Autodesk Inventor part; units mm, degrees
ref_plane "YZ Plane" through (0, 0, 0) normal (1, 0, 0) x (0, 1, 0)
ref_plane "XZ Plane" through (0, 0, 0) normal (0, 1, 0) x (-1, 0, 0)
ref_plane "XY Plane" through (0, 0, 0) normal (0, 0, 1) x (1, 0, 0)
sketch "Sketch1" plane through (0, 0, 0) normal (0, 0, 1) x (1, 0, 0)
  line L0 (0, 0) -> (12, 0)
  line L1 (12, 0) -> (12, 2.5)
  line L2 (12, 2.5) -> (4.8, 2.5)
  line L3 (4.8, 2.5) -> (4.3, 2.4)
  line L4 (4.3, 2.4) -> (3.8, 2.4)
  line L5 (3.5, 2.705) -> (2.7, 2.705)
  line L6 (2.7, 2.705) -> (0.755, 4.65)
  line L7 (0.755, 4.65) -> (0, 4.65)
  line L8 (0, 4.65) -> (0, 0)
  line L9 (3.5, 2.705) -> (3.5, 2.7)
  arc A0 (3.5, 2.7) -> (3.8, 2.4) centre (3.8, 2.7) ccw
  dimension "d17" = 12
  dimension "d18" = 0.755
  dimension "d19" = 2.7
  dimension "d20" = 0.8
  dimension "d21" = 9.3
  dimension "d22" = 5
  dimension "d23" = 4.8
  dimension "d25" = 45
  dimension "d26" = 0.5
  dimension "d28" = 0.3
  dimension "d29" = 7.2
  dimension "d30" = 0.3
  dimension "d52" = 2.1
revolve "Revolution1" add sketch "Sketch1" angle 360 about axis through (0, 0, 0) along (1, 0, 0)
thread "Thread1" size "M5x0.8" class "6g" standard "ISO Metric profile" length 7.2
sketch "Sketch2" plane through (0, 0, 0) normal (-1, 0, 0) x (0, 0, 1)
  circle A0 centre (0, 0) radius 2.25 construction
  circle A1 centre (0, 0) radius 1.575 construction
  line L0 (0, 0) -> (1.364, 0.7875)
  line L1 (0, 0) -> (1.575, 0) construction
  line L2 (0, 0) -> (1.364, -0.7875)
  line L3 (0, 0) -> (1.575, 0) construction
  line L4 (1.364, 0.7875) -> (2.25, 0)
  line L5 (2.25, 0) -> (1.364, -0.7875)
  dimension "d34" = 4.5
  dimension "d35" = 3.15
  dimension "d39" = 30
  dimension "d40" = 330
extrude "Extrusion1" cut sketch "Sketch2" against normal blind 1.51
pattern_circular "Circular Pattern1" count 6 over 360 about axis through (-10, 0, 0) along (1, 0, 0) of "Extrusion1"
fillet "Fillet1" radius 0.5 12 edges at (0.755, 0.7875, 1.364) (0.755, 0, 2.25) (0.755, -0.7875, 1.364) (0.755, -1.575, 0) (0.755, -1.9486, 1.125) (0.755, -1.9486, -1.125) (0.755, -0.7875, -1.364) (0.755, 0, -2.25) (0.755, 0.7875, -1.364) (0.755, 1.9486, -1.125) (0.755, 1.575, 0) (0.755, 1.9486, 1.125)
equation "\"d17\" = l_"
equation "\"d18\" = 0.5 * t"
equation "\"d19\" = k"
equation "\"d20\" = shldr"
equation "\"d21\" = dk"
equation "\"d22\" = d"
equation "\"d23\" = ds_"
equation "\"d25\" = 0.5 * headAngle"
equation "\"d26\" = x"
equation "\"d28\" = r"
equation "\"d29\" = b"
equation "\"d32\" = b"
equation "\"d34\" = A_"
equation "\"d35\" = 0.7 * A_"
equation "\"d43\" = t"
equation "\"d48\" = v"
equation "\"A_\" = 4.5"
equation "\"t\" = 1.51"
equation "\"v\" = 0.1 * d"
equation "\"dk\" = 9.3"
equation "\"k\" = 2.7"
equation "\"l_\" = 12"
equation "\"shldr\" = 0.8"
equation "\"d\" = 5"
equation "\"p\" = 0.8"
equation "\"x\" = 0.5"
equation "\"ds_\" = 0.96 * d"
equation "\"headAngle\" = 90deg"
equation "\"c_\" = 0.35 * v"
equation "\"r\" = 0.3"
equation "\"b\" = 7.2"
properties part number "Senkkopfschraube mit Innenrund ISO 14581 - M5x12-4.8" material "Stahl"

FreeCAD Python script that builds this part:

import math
import FreeCAD as App
import Part
import Sketcher
Q = App.Units.Quantity


def edges_at(feature, points):
    """Names of the edges that pass closest to the given points."""
    edges = feature.Shape.Edges
    near = lambda p: min(range(len(edges)), key=lambda i: edges[i].distToShape(Part.Vertex(*p))[0])
    return sorted({f"Edge{near(p) + 1}" for p in points})

doc = App.newDocument("Part")
params = doc.addObject("Spreadsheet::Sheet", "Params")
for row, (alias, value) in enumerate([
    ("sketch1_radius", "0.3 mm"),
    ("sketch1_width", "12 mm"),
    ("sketch1_width2", "7.2 mm"),
    ("sketch1_width3", "0.5 mm"),
    ("sketch1_width4", "0.8 mm"),
    ("revolution_angle", "360 deg"),
    ("pocket1_length", "1.51 mm"),
    ("fillet_radius", "0.5 mm"),
], start=1):
    params.set(f"A{row}", alias)
    params.set(f"B{row}", "=" + value)
    params.setAlias(f"B{row}", alias)

body = doc.addObject("PartDesign::Body", "Body")

sketch1 = body.newObject("Sketcher::SketchObject", "Sketch")
sketch1.AttachmentSupport = (doc.getObject("XY_Plane"), [""])
sketch1.MapMode = "FlatFace"
sketch1.addGeometry(Part.LineSegment(App.Vector(0, 4.65, 0), App.Vector(0, 0, 0)), False)
sketch1.addGeometry(Part.LineSegment(App.Vector(0, 0, 0), App.Vector(12, 0, 0)), False)
sketch1.addGeometry(Part.LineSegment(App.Vector(12, 0, 0), App.Vector(12, 2.5, 0)), False)
sketch1.addGeometry(Part.LineSegment(App.Vector(12, 2.5, 0), App.Vector(4.8, 2.5, 0)), False)
sketch1.addGeometry(Part.LineSegment(App.Vector(4.8, 2.5, 0), App.Vector(4.3, 2.4, 0)), False)
sketch1.addGeometry(Part.LineSegment(App.Vector(4.3, 2.4, 0), App.Vector(3.8, 2.4, 0)), False)
sketch1.addGeometry(Part.ArcOfCircle(Part.Circle(App.Vector(3.8, 2.7, 0), App.Vector(0, 0, 1), 0.3), math.radians(180), math.radians(270)), False)
sketch1.addGeometry(Part.LineSegment(App.Vector(3.5, 2.7, 0), App.Vector(3.5, 2.705, 0)), False)
sketch1.addGeometry(Part.LineSegment(App.Vector(3.5, 2.705, 0), App.Vector(2.7, 2.705, 0)), False)
sketch1.addGeometry(Part.LineSegment(App.Vector(2.7, 2.705, 0), App.Vector(0.755, 4.65, 0)), False)
sketch1.addGeometry(Part.LineSegment(App.Vector(0.755, 4.65, 0), App.Vector(0, 4.65, 0)), False)
sketch1.addConstraint(Sketcher.Constraint("Coincident", 0, 2, 1, 1))
sketch1.addConstraint(Sketcher.Constraint("Coincident", 1, 2, 2, 1))
sketch1.addConstraint(Sketcher.Constraint("Coincident", 2, 2, 3, 1))
sketch1.addConstraint(Sketcher.Constraint("Coincident", 3, 2, 4, 1))
sketch1.addConstraint(Sketcher.Constraint("Coincident", 4, 2, 5, 1))
sketch1.addConstraint(Sketcher.Constraint("Tangent", 5, 2, 6, 2))
sketch1.addConstraint(Sketcher.Constraint("Tangent", 6, 1, 7, 1))
sketch1.addConstraint(Sketcher.Constraint("Coincident", 7, 2, 8, 1))
sketch1.addConstraint(Sketcher.Constraint("Coincident", 8, 2, 9, 1))
sketch1.addConstraint(Sketcher.Constraint("Coincident", 9, 2, 10, 1))
sketch1.addConstraint(Sketcher.Constraint("Coincident", 10, 2, 0, 1))
sketch1.addConstraint(Sketcher.Constraint("Vertical", 0))
sketch1.addConstraint(Sketcher.Constraint("Horizontal", 1))
sketch1.addConstraint(Sketcher.Constraint("Vertical", 2))
sketch1.addConstraint(Sketcher.Constraint("Horizontal", 3))
sketch1.addConstraint(Sketcher.Constraint("Horizontal", 5))
sketch1.addConstraint(Sketcher.Constraint("Vertical", 7))
sketch1.addConstraint(Sketcher.Constraint("Horizontal", 8))
sketch1.addConstraint(Sketcher.Constraint("Horizontal", 10))
sketch1.addConstraint(Sketcher.Constraint("Coincident", 0, 2, -1, 1))
sketch1.addConstraint(Sketcher.Constraint("Radius", 6, Q("0.3 mm")))
sketch1.addConstraint(Sketcher.Constraint("DistanceX", 1, 1, 1, 2, Q("12 mm")))
sketch1.addConstraint(Sketcher.Constraint("DistanceX", 3, 2, 3, 1, Q("7.2 mm")))
sketch1.addConstraint(Sketcher.Constraint("DistanceX", 5, 2, 5, 1, Q("0.5 mm")))
sketch1.addConstraint(Sketcher.Constraint("DistanceX", 8, 2, 8, 1, Q("0.8 mm")))
sketch1.addConstraint(Sketcher.Constraint("DistanceY", -1, 1, 6, 3, Q("2.7 mm")))
sketch1.addConstraint(Sketcher.Constraint("DistanceX", -1, 1, 8, 2, Q("2.7 mm")))
sketch1.addConstraint(Sketcher.Constraint("DistanceX", 10, 2, 10, 1, Q("0.755 mm")))
sketch1.addConstraint(Sketcher.Constraint("Angle", 9, Q("135 deg")))
sketch1.addConstraint(Sketcher.Constraint("DistanceY", 2, 1, 2, 2, Q("2.5 mm")))
sketch1.addConstraint(Sketcher.Constraint("DistanceY", 0, 2, 0, 1, Q("4.65 mm")))
sketch1.setExpression("Constraints[20]", "Params.sketch1_radius")
sketch1.setExpression("Constraints[21]", "Params.sketch1_width")
sketch1.setExpression("Constraints[22]", "Params.sketch1_width2")
sketch1.setExpression("Constraints[23]", "Params.sketch1_width3")
sketch1.setExpression("Constraints[24]", "Params.sketch1_width4")
revolution = body.newObject("PartDesign::Revolution", "Revolution")
revolution.Profile = sketch1
revolution.ReferenceAxis = (sketch1, ["H_Axis"])
revolution.setExpression("Angle", "Params.revolution_angle")

sketch2 = body.newObject("Sketcher::SketchObject", "Sketch001")
sketch2.AttachmentSupport = (doc.getObject("YZ_Plane"), [""])
sketch2.MapMode = "FlatFace"
sketch2.addGeometry(Part.LineSegment(App.Vector(0.8, 1.4, 0), App.Vector(0, 0, 0)), False)
sketch2.addGeometry(Part.LineSegment(App.Vector(0, 0, 0), App.Vector(-0.8, 1.4, 0)), False)
sketch2.addGeometry(Part.LineSegment(App.Vector(-0.8, 1.4, 0), App.Vector(0, 2.2, 0)), False)
sketch2.addGeometry(Part.LineSegment(App.Vector(0, 2.2, 0), App.Vector(0.8, 1.4, 0)), False)
sketch2.addConstraint(Sketcher.Constraint("Coincident", 0, 2, 1, 1))
sketch2.addConstraint(Sketcher.Constraint("Coincident", 1, 2, 2, 1))
sketch2.addConstraint(Sketcher.Constraint("Coincident", 2, 2, 3, 1))
sketch2.addConstraint(Sketcher.Constraint("Coincident", 3, 2, 0, 1))
sketch2.addConstraint(Sketcher.Constraint("Coincident", 0, 2, -1, 1))
sketch2.addConstraint(Sketcher.Constraint("Symmetric", 1, 2, 3, 2, -2))
sketch2.addConstraint(Sketcher.Constraint("PointOnObject", 2, 2, -2))
sketch2.addConstraint(Sketcher.Constraint("Angle", 0, Q("-119.9998 deg")))
sketch2.addConstraint(Sketcher.Constraint("DistanceY", -1, 1, 2, 2, Q("2.25 mm")))
sketch2.addConstraint(Sketcher.Constraint("Distance", 0, Q("1.575 mm")))
pocket1 = body.newObject("PartDesign::Pocket", "Pocket")
pocket1.Profile = sketch2
pocket1.setExpression("Length", "Params.pocket1_length")
pocket1.Reversed = True
doc.recompute()

polarpattern = body.newObject("PartDesign::PolarPattern", "PolarPattern")
polarpattern.Originals = [pocket1]
polarpattern.Axis = (doc.getObject("X_Axis"), [""])
polarpattern.Angle = 360
polarpattern.Occurrences = 6
body.Tip = polarpattern
doc.recompute()

fillet = body.newObject("PartDesign::Fillet", "Fillet")
fillet.Base = (polarpattern, edges_at(polarpattern, [
    (0.755, 0.787, 1.364),
    (0.755, 0, 2.25),
    (0.755, -0.787, 1.364),
    (0.755, -1.575, 0),
    (0.755, -1.949, 1.125),
    (0.755, -1.949, -1.125),
    (0.755, -0.787, -1.364),
    (0.755, 0, -2.25),
    (0.755, 0.787, -1.364),
    (0.755, 1.949, -1.125),
    (0.755, 1.575, 0),
    (0.755, 1.949, 1.125),
]))
fillet.setExpression("Radius", "Params.fillet_radius")

doc.recompute()
